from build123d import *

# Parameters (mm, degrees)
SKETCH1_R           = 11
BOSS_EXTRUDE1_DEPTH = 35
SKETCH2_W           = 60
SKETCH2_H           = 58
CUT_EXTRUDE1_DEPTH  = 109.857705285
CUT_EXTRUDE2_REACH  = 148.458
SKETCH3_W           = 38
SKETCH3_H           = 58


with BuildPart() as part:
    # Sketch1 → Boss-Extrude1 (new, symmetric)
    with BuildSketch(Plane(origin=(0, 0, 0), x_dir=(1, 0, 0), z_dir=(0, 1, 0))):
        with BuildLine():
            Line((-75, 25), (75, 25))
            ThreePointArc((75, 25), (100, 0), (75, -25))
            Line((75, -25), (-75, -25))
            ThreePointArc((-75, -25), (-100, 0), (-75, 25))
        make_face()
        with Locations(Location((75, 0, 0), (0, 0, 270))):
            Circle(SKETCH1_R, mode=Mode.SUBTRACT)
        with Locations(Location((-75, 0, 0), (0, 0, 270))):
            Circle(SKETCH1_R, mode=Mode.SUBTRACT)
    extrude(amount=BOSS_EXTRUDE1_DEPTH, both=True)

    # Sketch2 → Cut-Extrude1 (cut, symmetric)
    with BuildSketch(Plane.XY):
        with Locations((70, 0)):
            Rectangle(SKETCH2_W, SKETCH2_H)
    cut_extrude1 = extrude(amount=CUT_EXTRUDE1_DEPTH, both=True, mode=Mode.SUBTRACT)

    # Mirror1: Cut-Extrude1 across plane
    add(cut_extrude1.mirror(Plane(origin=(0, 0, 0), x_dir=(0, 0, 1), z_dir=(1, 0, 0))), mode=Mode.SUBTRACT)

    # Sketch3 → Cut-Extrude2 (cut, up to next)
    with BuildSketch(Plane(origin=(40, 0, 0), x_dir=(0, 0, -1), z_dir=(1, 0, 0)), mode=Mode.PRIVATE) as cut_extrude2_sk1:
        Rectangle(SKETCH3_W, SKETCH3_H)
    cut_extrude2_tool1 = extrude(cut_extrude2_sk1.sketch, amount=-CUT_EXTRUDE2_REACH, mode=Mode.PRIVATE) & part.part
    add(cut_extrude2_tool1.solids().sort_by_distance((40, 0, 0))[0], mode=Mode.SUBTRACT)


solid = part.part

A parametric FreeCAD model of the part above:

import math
import FreeCAD as App
import Part
import Sketcher


def add_polygon(sketch, points):
    """Adds a closed chain of lines whose ends are joined by coincident constraints."""
    first, n = sketch.GeometryCount, len(points)
    for a, b in zip(points, points[1:] + points[:1]):
        sketch.addGeometry(Part.LineSegment(App.Vector(*a, 0), App.Vector(*b, 0)), False)
    for i in range(n):
        sketch.addConstraint(Sketcher.Constraint("Coincident", first + i, 2, first + (i + 1) % n, 1))

doc = App.newDocument("Part")
params = doc.addObject("Spreadsheet::Sheet", "Params")
for row, (alias, value) in enumerate([
    ("sketch1_diameter", "22 mm"),
    ("sketch1_radius", "25 mm"),
    ("sketch1_width", "150 mm"),
    ("pad1_length", "70 mm"),
    ("sketch2_width", "60 mm"),
    ("sketch2_height", "58 mm"),
    ("pocket1_length", "219.715411 mm"),
    ("sketch3_width", "58 mm"),
    ("sketch3_height", "38 mm"),
], start=1):
    params.set(f"A{row}", alias)
    params.set(f"B{row}", "=" + value)
    params.setAlias(f"B{row}", alias)

body = doc.addObject("PartDesign::Body", "Body")

sketch1 = doc.addObject("Sketcher::SketchObject", "Sketch")
body.addObject(sketch1)
sketch1.AttachmentSupport = (doc.XZ_Plane, [""])
sketch1.MapMode = "FlatFace"
sketch1.addGeometry([
    Part.LineSegment(App.Vector(75, -25, 0), App.Vector(-75, -25, 0)),
    Part.ArcOfCircle(Part.Circle(App.Vector(-75, 0, 0), App.Vector(0, 0, 1), 25), math.radians(90), math.radians(270)),
    Part.LineSegment(App.Vector(-75, 25, 0), App.Vector(75, 25, 0)),
    Part.ArcOfCircle(Part.Circle(App.Vector(75, 0, 0), App.Vector(0, 0, 1), 25), math.radians(-90), math.radians(90)),
    Part.Circle(App.Vector(75, 0, 0), App.Vector(0, 0, 1), 11),
    Part.Circle(App.Vector(-75, 0, 0), App.Vector(0, 0, 1), 11),
], False)
sketch1.addConstraint([
    Sketcher.Constraint("Tangent", 0, 2, 1, 2),
    Sketcher.Constraint("Tangent", 1, 1, 2, 1),
    Sketcher.Constraint("Tangent", 2, 2, 3, 2),
    Sketcher.Constraint("Tangent", 3, 1, 0, 1),
    Sketcher.Constraint("Horizontal", 0),
    Sketcher.Constraint("Horizontal", 2),
    Sketcher.Constraint("Coincident", 4, 3, 3, 3),
    Sketcher.Constraint("Coincident", 5, 3, 1, 3),
    Sketcher.Constraint("Equal", 4, 5),
    Sketcher.Constraint("Symmetric", 1, 3, 3, 3, -1, 1),
    Sketcher.Constraint("Diameter", 4, 22.0),
    Sketcher.Constraint("Radius", 1, 25.0),
    Sketcher.Constraint("DistanceX", 0, 2, 0, 1, 150.0),
])
sketch1.setExpression("Constraints[10]", "Params.sketch1_diameter")
sketch1.setExpression("Constraints[11]", "Params.sketch1_radius")
sketch1.setExpression("Constraints[12]", "Params.sketch1_width")
pad1 = doc.addObject("PartDesign::Pad", "Pad")
body.addObject(pad1)
pad1.Profile = sketch1
pad1.setExpression("Length", "Params.pad1_length")
pad1.Midplane = True

sketch2 = doc.addObject("Sketcher::SketchObject", "Sketch001")
body.addObject(sketch2)
sketch2.AttachmentSupport = (doc.XY_Plane, [""])
sketch2.MapMode = "FlatFace"
add_polygon(sketch2, [(40, 29), (40, -29), (100, -29), (100, 29)])
sketch2.addConstraint([
    Sketcher.Constraint("Vertical", 0),
    Sketcher.Constraint("Horizontal", 1),
    Sketcher.Constraint("Vertical", 2),
    Sketcher.Constraint("Horizontal", 3),
    Sketcher.Constraint("DistanceX", 1, 1, 1, 2, 60.0),
    Sketcher.Constraint("DistanceY", 0, 2, 0, 1, 58.0),
    Sketcher.Constraint("DistanceX", -1, 1, 0, 2, 40.0),
    Sketcher.Constraint("DistanceY", 0, 2, -1, 1, 29.0),
])
sketch2.setExpression("Constraints[8]", "Params.sketch2_width")
sketch2.setExpression("Constraints[9]", "Params.sketch2_height")
pocket1 = doc.addObject("PartDesign::Pocket", "Pocket")
body.addObject(pocket1)
pocket1.Profile = sketch2
pocket1.setExpression("Length", "Params.pocket1_length")
pocket1.Midplane = True
doc.recompute()

mirrored = doc.addObject("PartDesign::Mirrored", "Mirrored")
body.addObject(mirrored)
mirrored.Originals = [pocket1]
mirrored.MirrorPlane = (doc.YZ_Plane, [""])
body.Tip = mirrored

sketch3 = doc.addObject("Sketcher::SketchObject", "Sketch002")
body.addObject(sketch3)
sketch3.AttachmentSupport = (doc.YZ_Plane, [""])
sketch3.MapMode = "FlatFace"
sketch3.AttachmentOffset = App.Placement(App.Vector(0, 0, 40), App.Rotation())
add_polygon(sketch3, [(29, 19), (-29, 19), (-29, -19), (29, -19)])
sketch3.addConstraint([
    Sketcher.Constraint("Horizontal", 0),
    Sketcher.Constraint("Vertical", 1),
    Sketcher.Constraint("Horizontal", 2),
    Sketcher.Constraint("Vertical", 3),
    Sketcher.Constraint("Symmetric", 0, 2, 2, 2, -1, 1),
    Sketcher.Constraint("DistanceX", 0, 2, 0, 1, 58.0),
    Sketcher.Constraint("DistanceY", 1, 2, 1, 1, 38.0),
])
sketch3.setExpression("Constraints[9]", "Params.sketch3_width")
sketch3.setExpression("Constraints[10]", "Params.sketch3_height")
pocket2 = doc.addObject("PartDesign::Pocket", "Pocket001")
body.addObject(pocket2)
pocket2.Profile = sketch3
pocket2.Type = "UpToFirst"

doc.recompute()
